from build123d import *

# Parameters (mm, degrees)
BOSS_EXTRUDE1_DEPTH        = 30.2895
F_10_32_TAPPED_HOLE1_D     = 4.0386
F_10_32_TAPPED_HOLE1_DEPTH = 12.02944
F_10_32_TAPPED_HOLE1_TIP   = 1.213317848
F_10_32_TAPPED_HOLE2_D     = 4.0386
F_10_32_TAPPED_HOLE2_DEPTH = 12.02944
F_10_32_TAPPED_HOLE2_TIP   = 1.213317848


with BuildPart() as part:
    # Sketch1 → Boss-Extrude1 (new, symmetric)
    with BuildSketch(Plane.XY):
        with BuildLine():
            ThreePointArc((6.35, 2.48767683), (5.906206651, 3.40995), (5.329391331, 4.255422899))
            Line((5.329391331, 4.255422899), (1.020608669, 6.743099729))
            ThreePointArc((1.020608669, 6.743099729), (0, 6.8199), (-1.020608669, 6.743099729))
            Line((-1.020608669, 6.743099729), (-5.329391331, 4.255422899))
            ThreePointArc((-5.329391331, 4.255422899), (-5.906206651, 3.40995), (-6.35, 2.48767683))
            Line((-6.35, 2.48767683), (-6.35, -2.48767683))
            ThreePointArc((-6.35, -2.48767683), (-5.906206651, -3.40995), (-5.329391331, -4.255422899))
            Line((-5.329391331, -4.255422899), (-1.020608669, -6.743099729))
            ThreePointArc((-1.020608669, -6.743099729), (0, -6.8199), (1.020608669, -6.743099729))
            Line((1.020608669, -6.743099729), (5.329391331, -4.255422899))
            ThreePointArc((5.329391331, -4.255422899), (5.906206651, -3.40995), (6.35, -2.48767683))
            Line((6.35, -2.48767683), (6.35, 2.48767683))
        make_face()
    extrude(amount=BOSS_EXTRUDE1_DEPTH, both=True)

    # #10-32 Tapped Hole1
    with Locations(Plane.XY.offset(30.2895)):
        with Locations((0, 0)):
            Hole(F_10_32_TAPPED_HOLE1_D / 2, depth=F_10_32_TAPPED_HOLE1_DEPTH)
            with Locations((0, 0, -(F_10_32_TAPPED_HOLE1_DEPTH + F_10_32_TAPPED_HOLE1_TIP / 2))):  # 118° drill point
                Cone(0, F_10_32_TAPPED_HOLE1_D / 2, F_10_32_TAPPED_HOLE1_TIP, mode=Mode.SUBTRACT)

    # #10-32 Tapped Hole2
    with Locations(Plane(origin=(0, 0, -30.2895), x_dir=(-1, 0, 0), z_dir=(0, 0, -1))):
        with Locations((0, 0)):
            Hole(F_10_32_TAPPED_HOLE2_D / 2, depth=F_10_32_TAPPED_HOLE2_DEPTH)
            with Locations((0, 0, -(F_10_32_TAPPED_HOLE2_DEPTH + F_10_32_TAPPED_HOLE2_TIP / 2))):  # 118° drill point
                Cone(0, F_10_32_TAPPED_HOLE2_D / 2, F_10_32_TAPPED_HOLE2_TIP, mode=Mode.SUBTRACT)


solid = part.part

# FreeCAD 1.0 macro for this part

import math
import FreeCAD as App
import Part
import Sketcher

V = App.Vector
Q = App.Units.Quantity

doc = App.newDocument("Part")
params = doc.addObject("Spreadsheet::Sheet", "Params")
for row, (alias, value) in enumerate([
    ("pad1_length", "2.385 in"),
    ("sketch2_diameter", "0.159 in"),
    ("hole_diameter", "0.159 in"),
    ("hole_depth", "0.4736 in"),
    ("sketch3_diameter", "0.159 in"),
    ("hole2_diameter", "0.159 in"),
    ("hole2_depth", "0.4736 in"),
], start=1):
    params.set(f"A{row}", alias)
    params.set(f"B{row}", "=" + value)
    params.setAlias(f"B{row}", alias)

body = doc.addObject("PartDesign::Body", "Body")

sketch1 = body.newObject("Sketcher::SketchObject", "Sketch")
sketch1.AttachmentSupport = (doc.getObject("XY_Plane"), [""])
sketch1.MapMode = "FlatFace"
sketch1.addGeometry([
    Part.ArcOfCircle(Part.Circle(V(0, 0, 0), V(0, 0, 1), 6.8), math.radians(21.39), math.radians(38.61)),
    Part.LineSegment(V(5.3, 4.3, 0), V(1, 6.7, 0)),
    Part.ArcOfCircle(Part.Circle(V(0, 0, 0), V(0, 0, 1), 6.8), math.radians(81.39), math.radians(98.61)),
    Part.LineSegment(V(-1, 6.7, 0), V(-5.3, 4.3, 0)),
    Part.ArcOfCircle(Part.Circle(V(0, 0, 0), V(0, 0, 1), 6.8), math.radians(141.39), math.radians(158.61)),
    Part.LineSegment(V(-6.3, 2.5, 0), V(-6.3, -2.5, 0)),
    Part.ArcOfCircle(Part.Circle(V(0, 0, 0), V(0, 0, 1), 6.8), math.radians(-158.61), math.radians(-141.39)),
    Part.LineSegment(V(-5.3, -4.3, 0), V(-1, -6.7, 0)),
    Part.ArcOfCircle(Part.Circle(V(0, 0, 0), V(0, 0, 1), 6.8), math.radians(-98.61), math.radians(-81.39)),
    Part.LineSegment(V(1, -6.7, 0), V(5.3, -4.3, 0)),
    Part.ArcOfCircle(Part.Circle(V(0, 0, 0), V(0, 0, 1), 6.8), math.radians(-38.61), math.radians(-21.39)),
    Part.LineSegment(V(6.3, -2.5, 0), V(6.3, 2.5, 0)),
], False)
sketch1.addConstraint([
    Sketcher.Constraint("Coincident", 0, 2, 1, 1),
    Sketcher.Constraint("Coincident", 1, 2, 2, 1),
    Sketcher.Constraint("Coincident", 2, 2, 3, 1),
    Sketcher.Constraint("Coincident", 3, 2, 4, 1),
    Sketcher.Constraint("Coincident", 4, 2, 5, 1),
    Sketcher.Constraint("Coincident", 5, 2, 6, 1),
    Sketcher.Constraint("Coincident", 6, 2, 7, 1),
    Sketcher.Constraint("Coincident", 7, 2, 8, 1),
    Sketcher.Constraint("Coincident", 8, 2, 9, 1),
    Sketcher.Constraint("Coincident", 9, 2, 10, 1),
    Sketcher.Constraint("Coincident", 10, 2, 11, 1),
    Sketcher.Constraint("Coincident", 11, 2, 0, 1),
    Sketcher.Constraint("Vertical", 5),
    Sketcher.Constraint("Vertical", 11),
    Sketcher.Constraint("Coincident", 0, 3, -1, 1),
    Sketcher.Constraint("Coincident", 2, 3, -1, 1),
    Sketcher.Constraint("Coincident", 4, 3, -1, 1),
    Sketcher.Constraint("Coincident", 6, 3, -1, 1),
    Sketcher.Constraint("Coincident", 8, 3, -1, 1),
    Sketcher.Constraint("Coincident", 10, 3, -1, 1),
    Sketcher.Constraint("Equal", 0, 2),
    Sketcher.Constraint("Equal", 2, 4),
    Sketcher.Constraint("Equal", 4, 6),
    Sketcher.Constraint("Equal", 6, 8),
    Sketcher.Constraint("Equal", 8, 10),
    Sketcher.Constraint("Parallel", 1, 7),
    Sketcher.Constraint("Parallel", 3, 9),
    Sketcher.Constraint("Horizontal", 1, 2, 2, 2),
    Sketcher.Constraint("Horizontal", 0, 2, 3, 2),
    Sketcher.Constraint("Horizontal", 7, 2, 8, 2),
    Sketcher.Constraint("Horizontal", 5, 2, 10, 2),
    Sketcher.Constraint("Vertical", 3, 2, 6, 2),
    Sketcher.Constraint("Angle", 1, Q("150 deg")),
    Sketcher.Constraint("Radius", 0, Q("0.2685 in")),
    Sketcher.Constraint("DistanceX", 4, 2, -1, 1, Q("0.25 in")),
    Sketcher.Constraint("DistanceX", 2, 2, 0, 2, Q("0.25 in")),
])
pad1 = body.newObject("PartDesign::Pad", "Pad")
pad1.Profile = sketch1
pad1.setExpression("Length", "Params.pad1_length")
pad1.Midplane = True

sketch2 = body.newObject("Sketcher::SketchObject", "Sketch001")
sketch2.AttachmentSupport = (doc.getObject("XY_Plane"), [""])
sketch2.MapMode = "FlatFace"
sketch2.AttachmentOffset = App.Placement(V(0, 0, 1.1925 * 25.4), App.Rotation())
sketch2.addGeometry(Part.Circle(V(0, 0, 0), V(0, 0, 1), 2), False)
sketch2.addConstraint([
    Sketcher.Constraint("Coincident", 0, 3, -1, 1),
    Sketcher.Constraint("Diameter", 0, Q("0.159 in")),
])
sketch2.setExpression("Constraints[1]", "Params.sketch2_diameter")
doc.recompute()
hole = body.newObject("PartDesign::Hole", "Hole")
hole.Profile = sketch2
hole.ThreadType = "None"
hole.setExpression("Diameter", "Params.hole_diameter")
hole.DepthType = "Dimension"
hole.setExpression("Depth", "Params.hole_depth")
hole.DrillPoint = "Angled"
hole.DrillPointAngle = 118

sketch3 = body.newObject("Sketcher::SketchObject", "Sketch002")
sketch3.AttachmentSupport = (doc.getObject("XY_Plane"), [""])
sketch3.MapMode = "FlatFace"
sketch3.AttachmentOffset = App.Placement(V(0, 0, -1.1925 * 25.4), App.Rotation())
sketch3.addGeometry(Part.Circle(V(0, 0, 0), V(0, 0, 1), 2), False)
sketch3.addConstraint([
    Sketcher.Constraint("Coincident", 0, 3, -1, 1),
    Sketcher.Constraint("Diameter", 0, Q("0.159 in")),
])
sketch3.setExpression("Constraints[1]", "Params.sketch3_diameter")
doc.recompute()
hole2 = body.newObject("PartDesign::Hole", "Hole001")
hole2.Profile = sketch3
hole2.ThreadType = "None"
hole2.setExpression("Diameter", "Params.hole2_diameter")
hole2.DepthType = "Dimension"
hole2.setExpression("Depth", "Params.hole2_depth")
hole2.DrillPoint = "Angled"
hole2.DrillPointAngle = 118
hole2.Reversed = True

doc.recompute()
